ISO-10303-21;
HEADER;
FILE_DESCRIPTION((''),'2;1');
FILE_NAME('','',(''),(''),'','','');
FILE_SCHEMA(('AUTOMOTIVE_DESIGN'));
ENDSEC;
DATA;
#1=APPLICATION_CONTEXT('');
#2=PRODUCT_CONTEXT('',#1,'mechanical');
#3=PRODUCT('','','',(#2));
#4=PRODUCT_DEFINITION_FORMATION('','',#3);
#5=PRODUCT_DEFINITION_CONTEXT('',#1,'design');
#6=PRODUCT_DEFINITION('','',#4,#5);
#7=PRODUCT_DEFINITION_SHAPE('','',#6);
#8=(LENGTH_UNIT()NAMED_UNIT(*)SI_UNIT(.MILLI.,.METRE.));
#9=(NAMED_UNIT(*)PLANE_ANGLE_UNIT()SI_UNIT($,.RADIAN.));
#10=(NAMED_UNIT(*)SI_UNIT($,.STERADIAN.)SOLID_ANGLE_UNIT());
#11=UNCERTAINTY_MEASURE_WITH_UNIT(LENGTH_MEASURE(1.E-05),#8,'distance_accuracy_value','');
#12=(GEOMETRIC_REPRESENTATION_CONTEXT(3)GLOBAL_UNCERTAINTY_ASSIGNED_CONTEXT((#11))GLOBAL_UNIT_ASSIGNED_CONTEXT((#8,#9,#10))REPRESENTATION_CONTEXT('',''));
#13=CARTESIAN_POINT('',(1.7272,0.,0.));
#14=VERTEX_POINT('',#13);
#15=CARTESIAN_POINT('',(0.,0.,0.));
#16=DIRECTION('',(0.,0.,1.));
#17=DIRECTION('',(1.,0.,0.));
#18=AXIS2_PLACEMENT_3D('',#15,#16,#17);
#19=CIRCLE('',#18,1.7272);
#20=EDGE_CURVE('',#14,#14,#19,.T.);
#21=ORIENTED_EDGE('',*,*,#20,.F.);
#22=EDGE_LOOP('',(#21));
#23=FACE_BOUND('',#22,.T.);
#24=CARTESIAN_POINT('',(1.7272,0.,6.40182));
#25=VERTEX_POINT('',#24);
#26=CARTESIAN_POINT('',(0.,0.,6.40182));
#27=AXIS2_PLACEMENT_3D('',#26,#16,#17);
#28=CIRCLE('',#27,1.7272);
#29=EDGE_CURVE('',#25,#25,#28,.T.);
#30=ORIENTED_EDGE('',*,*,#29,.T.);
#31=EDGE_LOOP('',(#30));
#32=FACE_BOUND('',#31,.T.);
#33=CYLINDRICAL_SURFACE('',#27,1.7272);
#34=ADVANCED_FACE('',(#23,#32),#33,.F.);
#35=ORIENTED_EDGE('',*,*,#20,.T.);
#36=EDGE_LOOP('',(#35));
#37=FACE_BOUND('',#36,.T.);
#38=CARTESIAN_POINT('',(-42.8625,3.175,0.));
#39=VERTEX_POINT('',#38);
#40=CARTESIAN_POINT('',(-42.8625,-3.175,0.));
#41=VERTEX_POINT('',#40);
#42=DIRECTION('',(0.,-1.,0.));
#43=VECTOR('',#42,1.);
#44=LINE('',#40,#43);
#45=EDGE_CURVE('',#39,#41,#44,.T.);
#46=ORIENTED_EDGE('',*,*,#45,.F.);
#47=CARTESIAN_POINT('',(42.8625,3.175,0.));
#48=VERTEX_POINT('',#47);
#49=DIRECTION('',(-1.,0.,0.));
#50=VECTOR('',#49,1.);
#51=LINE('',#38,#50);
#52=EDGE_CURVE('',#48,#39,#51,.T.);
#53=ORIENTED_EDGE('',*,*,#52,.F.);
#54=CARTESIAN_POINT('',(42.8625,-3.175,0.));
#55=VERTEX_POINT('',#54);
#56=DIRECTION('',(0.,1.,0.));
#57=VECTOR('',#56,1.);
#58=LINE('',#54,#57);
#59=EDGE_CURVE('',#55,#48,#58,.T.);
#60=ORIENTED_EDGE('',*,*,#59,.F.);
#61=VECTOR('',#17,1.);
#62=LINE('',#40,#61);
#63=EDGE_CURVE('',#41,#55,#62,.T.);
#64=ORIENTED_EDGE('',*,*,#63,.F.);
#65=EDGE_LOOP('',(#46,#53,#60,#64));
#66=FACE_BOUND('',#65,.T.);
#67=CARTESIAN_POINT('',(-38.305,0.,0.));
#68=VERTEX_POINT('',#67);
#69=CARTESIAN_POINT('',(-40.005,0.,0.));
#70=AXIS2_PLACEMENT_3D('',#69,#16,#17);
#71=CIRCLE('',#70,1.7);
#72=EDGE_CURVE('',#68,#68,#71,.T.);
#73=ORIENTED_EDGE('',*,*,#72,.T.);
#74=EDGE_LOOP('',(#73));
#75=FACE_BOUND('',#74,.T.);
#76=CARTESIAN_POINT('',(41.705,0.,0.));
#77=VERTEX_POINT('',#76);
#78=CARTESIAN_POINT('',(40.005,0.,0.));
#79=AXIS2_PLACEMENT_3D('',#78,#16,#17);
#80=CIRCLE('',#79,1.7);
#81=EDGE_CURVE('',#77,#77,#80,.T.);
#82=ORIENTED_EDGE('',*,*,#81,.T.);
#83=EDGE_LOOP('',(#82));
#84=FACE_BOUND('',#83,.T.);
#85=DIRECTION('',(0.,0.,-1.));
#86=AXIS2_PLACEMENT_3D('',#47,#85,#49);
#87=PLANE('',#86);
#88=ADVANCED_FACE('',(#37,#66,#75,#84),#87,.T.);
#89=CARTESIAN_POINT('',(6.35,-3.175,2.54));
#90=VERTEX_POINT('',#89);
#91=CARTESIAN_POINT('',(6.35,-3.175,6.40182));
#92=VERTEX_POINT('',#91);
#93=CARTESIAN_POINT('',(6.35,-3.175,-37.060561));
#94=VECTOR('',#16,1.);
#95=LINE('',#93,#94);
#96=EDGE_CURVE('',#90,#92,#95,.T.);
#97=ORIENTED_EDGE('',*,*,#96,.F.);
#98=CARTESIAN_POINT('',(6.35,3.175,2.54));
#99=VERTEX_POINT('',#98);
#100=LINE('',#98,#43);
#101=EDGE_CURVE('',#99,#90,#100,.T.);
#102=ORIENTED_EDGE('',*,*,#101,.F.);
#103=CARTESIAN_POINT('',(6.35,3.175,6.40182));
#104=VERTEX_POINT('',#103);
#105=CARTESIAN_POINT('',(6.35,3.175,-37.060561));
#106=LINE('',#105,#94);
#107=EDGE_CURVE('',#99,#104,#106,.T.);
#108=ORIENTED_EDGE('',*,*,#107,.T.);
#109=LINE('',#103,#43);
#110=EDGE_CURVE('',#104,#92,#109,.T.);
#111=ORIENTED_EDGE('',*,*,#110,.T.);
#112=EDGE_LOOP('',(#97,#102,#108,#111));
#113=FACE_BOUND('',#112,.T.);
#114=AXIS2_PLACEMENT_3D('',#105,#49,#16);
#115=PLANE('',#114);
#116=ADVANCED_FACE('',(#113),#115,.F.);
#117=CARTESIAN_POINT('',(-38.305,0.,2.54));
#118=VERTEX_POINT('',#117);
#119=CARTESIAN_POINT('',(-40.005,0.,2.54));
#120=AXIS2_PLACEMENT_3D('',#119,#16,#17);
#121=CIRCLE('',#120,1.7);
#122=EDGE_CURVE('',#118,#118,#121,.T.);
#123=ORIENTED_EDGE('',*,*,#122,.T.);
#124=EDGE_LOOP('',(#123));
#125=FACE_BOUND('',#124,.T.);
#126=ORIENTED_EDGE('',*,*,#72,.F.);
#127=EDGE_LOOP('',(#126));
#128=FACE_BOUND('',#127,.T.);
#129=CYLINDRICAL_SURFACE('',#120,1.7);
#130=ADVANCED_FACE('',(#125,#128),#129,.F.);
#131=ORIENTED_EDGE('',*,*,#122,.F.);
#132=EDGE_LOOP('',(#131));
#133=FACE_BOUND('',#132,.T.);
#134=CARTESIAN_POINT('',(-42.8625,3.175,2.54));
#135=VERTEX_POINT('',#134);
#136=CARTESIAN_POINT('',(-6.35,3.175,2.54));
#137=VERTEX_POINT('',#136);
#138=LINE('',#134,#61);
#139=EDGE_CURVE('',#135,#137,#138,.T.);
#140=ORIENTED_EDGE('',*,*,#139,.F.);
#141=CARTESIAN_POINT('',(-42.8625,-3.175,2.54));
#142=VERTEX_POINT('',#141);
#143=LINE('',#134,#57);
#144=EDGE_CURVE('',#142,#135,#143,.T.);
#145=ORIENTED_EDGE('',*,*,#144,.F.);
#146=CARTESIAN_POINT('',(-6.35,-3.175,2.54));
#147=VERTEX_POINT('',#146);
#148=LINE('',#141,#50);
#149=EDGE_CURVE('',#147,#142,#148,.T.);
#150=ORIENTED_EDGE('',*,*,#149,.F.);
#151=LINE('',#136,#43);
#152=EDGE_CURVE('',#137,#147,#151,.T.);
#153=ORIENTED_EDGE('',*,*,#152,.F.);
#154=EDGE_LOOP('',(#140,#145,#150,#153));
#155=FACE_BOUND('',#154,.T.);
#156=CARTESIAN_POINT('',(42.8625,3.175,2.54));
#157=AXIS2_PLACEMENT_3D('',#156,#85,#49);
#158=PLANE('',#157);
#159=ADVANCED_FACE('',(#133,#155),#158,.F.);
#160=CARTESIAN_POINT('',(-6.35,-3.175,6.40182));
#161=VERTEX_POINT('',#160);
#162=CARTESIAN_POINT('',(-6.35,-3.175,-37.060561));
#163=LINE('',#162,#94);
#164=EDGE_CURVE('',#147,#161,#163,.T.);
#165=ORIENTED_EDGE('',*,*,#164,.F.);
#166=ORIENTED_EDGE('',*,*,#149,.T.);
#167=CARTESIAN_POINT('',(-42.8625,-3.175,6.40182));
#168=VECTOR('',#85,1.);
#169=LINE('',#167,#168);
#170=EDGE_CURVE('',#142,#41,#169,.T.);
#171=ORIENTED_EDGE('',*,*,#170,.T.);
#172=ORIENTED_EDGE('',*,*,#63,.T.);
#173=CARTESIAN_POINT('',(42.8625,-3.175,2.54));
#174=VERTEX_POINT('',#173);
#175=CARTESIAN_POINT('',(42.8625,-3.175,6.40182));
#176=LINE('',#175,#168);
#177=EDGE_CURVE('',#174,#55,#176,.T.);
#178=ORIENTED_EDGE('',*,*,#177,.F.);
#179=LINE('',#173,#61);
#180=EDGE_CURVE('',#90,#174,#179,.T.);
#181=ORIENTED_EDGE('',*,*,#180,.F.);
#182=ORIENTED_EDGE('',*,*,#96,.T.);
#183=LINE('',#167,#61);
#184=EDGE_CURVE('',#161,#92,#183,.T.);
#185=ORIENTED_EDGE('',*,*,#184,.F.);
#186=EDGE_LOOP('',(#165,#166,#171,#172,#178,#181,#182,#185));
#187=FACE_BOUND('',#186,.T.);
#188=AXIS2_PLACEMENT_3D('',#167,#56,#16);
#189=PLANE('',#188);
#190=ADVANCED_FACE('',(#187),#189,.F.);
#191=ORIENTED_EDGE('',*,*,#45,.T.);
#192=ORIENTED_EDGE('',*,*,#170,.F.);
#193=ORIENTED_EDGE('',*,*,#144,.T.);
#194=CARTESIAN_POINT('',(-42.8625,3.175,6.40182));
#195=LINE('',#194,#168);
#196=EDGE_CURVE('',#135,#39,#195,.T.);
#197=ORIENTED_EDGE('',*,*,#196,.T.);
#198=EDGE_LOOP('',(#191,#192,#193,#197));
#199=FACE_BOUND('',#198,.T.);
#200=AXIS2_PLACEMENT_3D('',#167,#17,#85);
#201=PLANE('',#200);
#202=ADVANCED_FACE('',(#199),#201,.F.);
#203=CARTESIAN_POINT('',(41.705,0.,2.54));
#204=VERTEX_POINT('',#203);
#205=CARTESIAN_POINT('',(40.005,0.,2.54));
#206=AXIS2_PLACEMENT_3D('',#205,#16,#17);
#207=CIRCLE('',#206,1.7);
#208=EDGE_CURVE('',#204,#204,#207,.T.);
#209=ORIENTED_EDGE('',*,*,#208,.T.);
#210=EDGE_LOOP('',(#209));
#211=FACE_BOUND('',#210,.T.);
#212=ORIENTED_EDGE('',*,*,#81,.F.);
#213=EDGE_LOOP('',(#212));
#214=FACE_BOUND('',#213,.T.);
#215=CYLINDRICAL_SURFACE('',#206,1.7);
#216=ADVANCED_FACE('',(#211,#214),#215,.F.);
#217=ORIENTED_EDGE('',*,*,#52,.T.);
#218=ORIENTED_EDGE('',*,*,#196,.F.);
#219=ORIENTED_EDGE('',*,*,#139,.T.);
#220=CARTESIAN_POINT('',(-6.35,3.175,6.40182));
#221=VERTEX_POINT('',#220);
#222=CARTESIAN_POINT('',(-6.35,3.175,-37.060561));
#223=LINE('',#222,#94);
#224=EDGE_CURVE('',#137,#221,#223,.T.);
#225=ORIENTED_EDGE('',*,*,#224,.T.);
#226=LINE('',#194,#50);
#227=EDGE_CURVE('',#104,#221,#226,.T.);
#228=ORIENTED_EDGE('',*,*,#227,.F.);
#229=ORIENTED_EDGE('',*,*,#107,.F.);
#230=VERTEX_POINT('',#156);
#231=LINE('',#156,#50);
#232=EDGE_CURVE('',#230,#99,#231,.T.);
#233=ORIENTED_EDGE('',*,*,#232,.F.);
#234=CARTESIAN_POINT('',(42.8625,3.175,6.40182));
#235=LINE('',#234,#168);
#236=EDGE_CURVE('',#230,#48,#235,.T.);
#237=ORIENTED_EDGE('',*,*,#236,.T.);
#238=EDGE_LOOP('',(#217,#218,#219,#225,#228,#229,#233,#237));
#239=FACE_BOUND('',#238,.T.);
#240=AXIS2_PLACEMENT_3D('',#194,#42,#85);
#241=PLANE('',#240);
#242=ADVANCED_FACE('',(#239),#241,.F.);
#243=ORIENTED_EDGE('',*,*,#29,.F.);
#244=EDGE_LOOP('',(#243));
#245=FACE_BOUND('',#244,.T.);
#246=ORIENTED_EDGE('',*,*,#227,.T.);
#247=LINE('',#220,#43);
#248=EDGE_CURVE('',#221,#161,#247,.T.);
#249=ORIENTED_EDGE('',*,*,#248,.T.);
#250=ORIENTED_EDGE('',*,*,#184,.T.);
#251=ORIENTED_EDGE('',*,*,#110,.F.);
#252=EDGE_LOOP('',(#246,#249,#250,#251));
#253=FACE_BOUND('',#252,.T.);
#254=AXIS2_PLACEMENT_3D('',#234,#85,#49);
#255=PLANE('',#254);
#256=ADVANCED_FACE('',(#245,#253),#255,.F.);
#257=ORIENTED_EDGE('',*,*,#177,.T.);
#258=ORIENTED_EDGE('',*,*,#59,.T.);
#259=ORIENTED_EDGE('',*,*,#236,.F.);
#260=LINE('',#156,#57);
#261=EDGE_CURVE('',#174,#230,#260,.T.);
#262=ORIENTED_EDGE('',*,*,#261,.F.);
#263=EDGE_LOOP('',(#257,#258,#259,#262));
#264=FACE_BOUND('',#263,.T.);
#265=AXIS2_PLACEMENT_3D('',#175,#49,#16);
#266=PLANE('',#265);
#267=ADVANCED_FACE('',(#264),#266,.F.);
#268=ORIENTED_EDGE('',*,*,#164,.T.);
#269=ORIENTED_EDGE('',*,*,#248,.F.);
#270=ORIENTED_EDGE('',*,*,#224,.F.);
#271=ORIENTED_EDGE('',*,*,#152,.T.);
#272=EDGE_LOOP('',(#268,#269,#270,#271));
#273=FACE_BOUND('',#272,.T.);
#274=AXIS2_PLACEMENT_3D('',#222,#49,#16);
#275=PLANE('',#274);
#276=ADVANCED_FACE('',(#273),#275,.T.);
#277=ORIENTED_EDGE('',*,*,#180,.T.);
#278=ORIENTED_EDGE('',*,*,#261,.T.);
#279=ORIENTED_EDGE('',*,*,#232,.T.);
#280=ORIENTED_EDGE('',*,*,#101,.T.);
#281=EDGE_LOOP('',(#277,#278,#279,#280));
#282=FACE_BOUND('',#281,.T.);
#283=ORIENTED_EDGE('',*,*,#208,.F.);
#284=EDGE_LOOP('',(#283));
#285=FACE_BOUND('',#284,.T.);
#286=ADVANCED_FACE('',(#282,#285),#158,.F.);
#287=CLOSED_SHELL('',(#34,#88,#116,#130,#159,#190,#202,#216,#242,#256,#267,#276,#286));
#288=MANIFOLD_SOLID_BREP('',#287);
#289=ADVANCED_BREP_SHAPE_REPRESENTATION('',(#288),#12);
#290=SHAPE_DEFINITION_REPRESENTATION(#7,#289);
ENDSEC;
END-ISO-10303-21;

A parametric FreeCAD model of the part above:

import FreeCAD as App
import Part
import Sketcher
from FreeCAD import Vector
Q = App.Units.Quantity

doc = App.newDocument("Part")
body = doc.addObject("PartDesign::Body", "Body")

# Sketch on XY plane
sketch1 = body.newObject("Sketcher::SketchObject", "Sketch")
sketch1.AttachmentSupport = (doc.getObject("XY_Plane"), [""])
sketch1.MapMode = "FlatFace"
sketch1.addGeometry([
    Part.LineSegment(Vector(-43, 3, 0), Vector(-43, -3, 0)),
    Part.LineSegment(Vector(-43, -3, 0), Vector(43, -3, 0)),
    Part.LineSegment(Vector(43, -3, 0), Vector(43, 3, 0)),
    Part.LineSegment(Vector(43, 3, 0), Vector(-43, 3, 0)),
], False)
sketch1.addConstraint([
    Sketcher.Constraint("Coincident", 0, 2, 1, 1),
    Sketcher.Constraint("Coincident", 1, 2, 2, 1),
    Sketcher.Constraint("Coincident", 2, 2, 3, 1),
    Sketcher.Constraint("Coincident", 3, 2, 0, 1),
    Sketcher.Constraint("Vertical", 0),
    Sketcher.Constraint("Horizontal", 1),
    Sketcher.Constraint("Vertical", 2),
    Sketcher.Constraint("Horizontal", 3),
    Sketcher.Constraint("Symmetric", 0, 2, 2, 2, -1, 1),
    Sketcher.Constraint("DistanceY", 0, 2, 0, 1, Q("0.25 in")),
    Sketcher.Constraint("DistanceX", 1, 1, 1, 2, Q("3.375 in")),
])
pad1 = body.newObject("PartDesign::Pad", "Pad")
pad1.Profile = sketch1
pad1.Length = 6.40182

# Sketch on XY plane
sketch2 = body.newObject("Sketcher::SketchObject", "Sketch001")
sketch2.AttachmentSupport = (doc.getObject("XY_Plane"), [""])
sketch2.MapMode = "FlatFace"
sketch2.AttachmentOffset = App.Placement(Vector(0, 0, 6.40182), App.Rotation())
sketch2.addGeometry([
    Part.LineSegment(Vector(6, 3, 0), Vector(6, -3, 0)),
    Part.LineSegment(Vector(6, -3, 0), Vector(43, -3, 0)),
    Part.LineSegment(Vector(43, -3, 0), Vector(43, 3, 0)),
    Part.LineSegment(Vector(43, 3, 0), Vector(6, 3, 0)),
], False)
sketch2.addConstraint([
    Sketcher.Constraint("Coincident", 0, 2, 1, 1),
    Sketcher.Constraint("Coincident", 1, 2, 2, 1),
    Sketcher.Constraint("Coincident", 2, 2, 3, 1),
    Sketcher.Constraint("Coincident", 3, 2, 0, 1),
    Sketcher.Constraint("Vertical", 0),
    Sketcher.Constraint("Horizontal", 1),
    Sketcher.Constraint("Vertical", 2),
    Sketcher.Constraint("Horizontal", 3),
    Sketcher.Constraint("DistanceY", 0, 2, 0, 1, Q("0.25 in")),
    Sketcher.Constraint("DistanceX", 1, 1, 1, 2, Q("1.4375 in")),
    Sketcher.Constraint("DistanceX", -1, 1, 0, 2, Q("0.25 in")),
    Sketcher.Constraint("DistanceY", 0, 2, -1, 1, Q("0.125 in")),
])
pocket1 = body.newObject("PartDesign::Pocket", "Pocket")
pocket1.Profile = sketch2
pocket1.Length = 3.86182

# Sketch on XY plane
sketch3 = body.newObject("Sketcher::SketchObject", "Sketch002")
sketch3.AttachmentSupport = (doc.getObject("XY_Plane"), [""])
sketch3.MapMode = "FlatFace"
sketch3.AttachmentOffset = App.Placement(Vector(0, 0, 0.1 * 25.4), App.Rotation())
sketch3.addGeometry(Part.Circle(Vector(40, 0, 0), Vector(0, 0, 1), 1.7), False)
sketch3.addConstraint([
    Sketcher.Constraint("PointOnObject", 0, 3, -1),
    Sketcher.Constraint("Diameter", 0, 3.4),
    Sketcher.Constraint("DistanceX", -1, 1, 0, 3, Q("1.575 in")),
])
doc.recompute()
hole = body.newObject("PartDesign::Hole", "Hole")
hole.Profile = sketch3
hole.ThreadType = "None"
hole.Diameter = 3.4
hole.DepthType = "ThroughAll"
doc.recompute()

mirrored = body.newObject("PartDesign::Mirrored", "Mirrored")
mirrored.Originals = [pocket1, hole]
mirrored.MirrorPlane = (doc.getObject("YZ_Plane"), [""])
body.Tip = mirrored

# Sketch on XY plane
sketch4 = body.newObject("Sketcher::SketchObject", "Sketch003")
sketch4.AttachmentSupport = (doc.getObject("XY_Plane"), [""])
sketch4.MapMode = "FlatFace"
sketch4.AttachmentOffset = App.Placement(Vector(0, 0, 6.40182), App.Rotation())
sketch4.addGeometry(Part.Circle(Vector(0, 0, 0), Vector(0, 0, 1), 1.7), False)
sketch4.addConstraint([
    Sketcher.Constraint("Coincident", 0, 3, -1, 1),
    Sketcher.Constraint("Diameter", 0, Q("0.136 in")),
])
doc.recompute()
hole2 = body.newObject("PartDesign::Hole", "Hole001")
hole2.Profile = sketch4
hole2.ThreadType = "None"
hole2.Diameter = Q("0.136 in")
hole2.DepthType = "ThroughAll"

doc.recompute()
